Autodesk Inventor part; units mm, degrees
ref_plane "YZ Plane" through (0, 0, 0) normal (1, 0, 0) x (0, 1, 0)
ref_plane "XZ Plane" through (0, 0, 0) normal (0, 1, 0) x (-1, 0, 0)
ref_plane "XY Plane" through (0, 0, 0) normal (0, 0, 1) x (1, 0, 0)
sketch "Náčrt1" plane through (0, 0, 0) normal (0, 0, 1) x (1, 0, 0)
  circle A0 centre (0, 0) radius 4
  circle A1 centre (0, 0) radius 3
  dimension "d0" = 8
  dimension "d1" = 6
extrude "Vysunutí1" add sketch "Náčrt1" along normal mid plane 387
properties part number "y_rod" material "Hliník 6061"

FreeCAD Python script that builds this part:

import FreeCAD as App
import Part
import Sketcher
Q = App.Units.Quantity

doc = App.newDocument("Part")
params = doc.addObject("Spreadsheet::Sheet", "Params")
for row, (alias, value) in enumerate([
    ("sketch1_diameter", "8 mm"),
    ("sketch1_diameter2", "6 mm"),
    ("pad1_length", "387 mm"),
], start=1):
    params.set(f"A{row}", alias)
    params.set(f"B{row}", "=" + value)
    params.setAlias(f"B{row}", alias)

body = doc.addObject("PartDesign::Body", "Body")

# Sketch on XY plane
sketch1 = body.newObject("Sketcher::SketchObject", "Sketch")
sketch1.AttachmentSupport = (doc.getObject("XY_Plane"), [""])
sketch1.MapMode = "FlatFace"
sketch1.addGeometry([
    Part.Circle(App.Vector(0, 0, 0), App.Vector(0, 0, 1), 4),
    Part.Circle(App.Vector(0, 0, 0), App.Vector(0, 0, 1), 3),
], False)
sketch1.addConstraint([
    Sketcher.Constraint("Coincident", 0, 3, -1, 1),
    Sketcher.Constraint("Coincident", 1, 3, -1, 1),
    Sketcher.Constraint("Diameter", 0, Q("8 mm")),
    Sketcher.Constraint("Diameter", 1, Q("6 mm")),
])
sketch1.setExpression("Constraints[2]", "Params.sketch1_diameter")
sketch1.setExpression("Constraints[3]", "Params.sketch1_diameter2")
pad1 = body.newObject("PartDesign::Pad", "Pad")
pad1.Profile = sketch1
pad1.setExpression("Length", "Params.pad1_length")
pad1.Midplane = True

doc.recompute()
